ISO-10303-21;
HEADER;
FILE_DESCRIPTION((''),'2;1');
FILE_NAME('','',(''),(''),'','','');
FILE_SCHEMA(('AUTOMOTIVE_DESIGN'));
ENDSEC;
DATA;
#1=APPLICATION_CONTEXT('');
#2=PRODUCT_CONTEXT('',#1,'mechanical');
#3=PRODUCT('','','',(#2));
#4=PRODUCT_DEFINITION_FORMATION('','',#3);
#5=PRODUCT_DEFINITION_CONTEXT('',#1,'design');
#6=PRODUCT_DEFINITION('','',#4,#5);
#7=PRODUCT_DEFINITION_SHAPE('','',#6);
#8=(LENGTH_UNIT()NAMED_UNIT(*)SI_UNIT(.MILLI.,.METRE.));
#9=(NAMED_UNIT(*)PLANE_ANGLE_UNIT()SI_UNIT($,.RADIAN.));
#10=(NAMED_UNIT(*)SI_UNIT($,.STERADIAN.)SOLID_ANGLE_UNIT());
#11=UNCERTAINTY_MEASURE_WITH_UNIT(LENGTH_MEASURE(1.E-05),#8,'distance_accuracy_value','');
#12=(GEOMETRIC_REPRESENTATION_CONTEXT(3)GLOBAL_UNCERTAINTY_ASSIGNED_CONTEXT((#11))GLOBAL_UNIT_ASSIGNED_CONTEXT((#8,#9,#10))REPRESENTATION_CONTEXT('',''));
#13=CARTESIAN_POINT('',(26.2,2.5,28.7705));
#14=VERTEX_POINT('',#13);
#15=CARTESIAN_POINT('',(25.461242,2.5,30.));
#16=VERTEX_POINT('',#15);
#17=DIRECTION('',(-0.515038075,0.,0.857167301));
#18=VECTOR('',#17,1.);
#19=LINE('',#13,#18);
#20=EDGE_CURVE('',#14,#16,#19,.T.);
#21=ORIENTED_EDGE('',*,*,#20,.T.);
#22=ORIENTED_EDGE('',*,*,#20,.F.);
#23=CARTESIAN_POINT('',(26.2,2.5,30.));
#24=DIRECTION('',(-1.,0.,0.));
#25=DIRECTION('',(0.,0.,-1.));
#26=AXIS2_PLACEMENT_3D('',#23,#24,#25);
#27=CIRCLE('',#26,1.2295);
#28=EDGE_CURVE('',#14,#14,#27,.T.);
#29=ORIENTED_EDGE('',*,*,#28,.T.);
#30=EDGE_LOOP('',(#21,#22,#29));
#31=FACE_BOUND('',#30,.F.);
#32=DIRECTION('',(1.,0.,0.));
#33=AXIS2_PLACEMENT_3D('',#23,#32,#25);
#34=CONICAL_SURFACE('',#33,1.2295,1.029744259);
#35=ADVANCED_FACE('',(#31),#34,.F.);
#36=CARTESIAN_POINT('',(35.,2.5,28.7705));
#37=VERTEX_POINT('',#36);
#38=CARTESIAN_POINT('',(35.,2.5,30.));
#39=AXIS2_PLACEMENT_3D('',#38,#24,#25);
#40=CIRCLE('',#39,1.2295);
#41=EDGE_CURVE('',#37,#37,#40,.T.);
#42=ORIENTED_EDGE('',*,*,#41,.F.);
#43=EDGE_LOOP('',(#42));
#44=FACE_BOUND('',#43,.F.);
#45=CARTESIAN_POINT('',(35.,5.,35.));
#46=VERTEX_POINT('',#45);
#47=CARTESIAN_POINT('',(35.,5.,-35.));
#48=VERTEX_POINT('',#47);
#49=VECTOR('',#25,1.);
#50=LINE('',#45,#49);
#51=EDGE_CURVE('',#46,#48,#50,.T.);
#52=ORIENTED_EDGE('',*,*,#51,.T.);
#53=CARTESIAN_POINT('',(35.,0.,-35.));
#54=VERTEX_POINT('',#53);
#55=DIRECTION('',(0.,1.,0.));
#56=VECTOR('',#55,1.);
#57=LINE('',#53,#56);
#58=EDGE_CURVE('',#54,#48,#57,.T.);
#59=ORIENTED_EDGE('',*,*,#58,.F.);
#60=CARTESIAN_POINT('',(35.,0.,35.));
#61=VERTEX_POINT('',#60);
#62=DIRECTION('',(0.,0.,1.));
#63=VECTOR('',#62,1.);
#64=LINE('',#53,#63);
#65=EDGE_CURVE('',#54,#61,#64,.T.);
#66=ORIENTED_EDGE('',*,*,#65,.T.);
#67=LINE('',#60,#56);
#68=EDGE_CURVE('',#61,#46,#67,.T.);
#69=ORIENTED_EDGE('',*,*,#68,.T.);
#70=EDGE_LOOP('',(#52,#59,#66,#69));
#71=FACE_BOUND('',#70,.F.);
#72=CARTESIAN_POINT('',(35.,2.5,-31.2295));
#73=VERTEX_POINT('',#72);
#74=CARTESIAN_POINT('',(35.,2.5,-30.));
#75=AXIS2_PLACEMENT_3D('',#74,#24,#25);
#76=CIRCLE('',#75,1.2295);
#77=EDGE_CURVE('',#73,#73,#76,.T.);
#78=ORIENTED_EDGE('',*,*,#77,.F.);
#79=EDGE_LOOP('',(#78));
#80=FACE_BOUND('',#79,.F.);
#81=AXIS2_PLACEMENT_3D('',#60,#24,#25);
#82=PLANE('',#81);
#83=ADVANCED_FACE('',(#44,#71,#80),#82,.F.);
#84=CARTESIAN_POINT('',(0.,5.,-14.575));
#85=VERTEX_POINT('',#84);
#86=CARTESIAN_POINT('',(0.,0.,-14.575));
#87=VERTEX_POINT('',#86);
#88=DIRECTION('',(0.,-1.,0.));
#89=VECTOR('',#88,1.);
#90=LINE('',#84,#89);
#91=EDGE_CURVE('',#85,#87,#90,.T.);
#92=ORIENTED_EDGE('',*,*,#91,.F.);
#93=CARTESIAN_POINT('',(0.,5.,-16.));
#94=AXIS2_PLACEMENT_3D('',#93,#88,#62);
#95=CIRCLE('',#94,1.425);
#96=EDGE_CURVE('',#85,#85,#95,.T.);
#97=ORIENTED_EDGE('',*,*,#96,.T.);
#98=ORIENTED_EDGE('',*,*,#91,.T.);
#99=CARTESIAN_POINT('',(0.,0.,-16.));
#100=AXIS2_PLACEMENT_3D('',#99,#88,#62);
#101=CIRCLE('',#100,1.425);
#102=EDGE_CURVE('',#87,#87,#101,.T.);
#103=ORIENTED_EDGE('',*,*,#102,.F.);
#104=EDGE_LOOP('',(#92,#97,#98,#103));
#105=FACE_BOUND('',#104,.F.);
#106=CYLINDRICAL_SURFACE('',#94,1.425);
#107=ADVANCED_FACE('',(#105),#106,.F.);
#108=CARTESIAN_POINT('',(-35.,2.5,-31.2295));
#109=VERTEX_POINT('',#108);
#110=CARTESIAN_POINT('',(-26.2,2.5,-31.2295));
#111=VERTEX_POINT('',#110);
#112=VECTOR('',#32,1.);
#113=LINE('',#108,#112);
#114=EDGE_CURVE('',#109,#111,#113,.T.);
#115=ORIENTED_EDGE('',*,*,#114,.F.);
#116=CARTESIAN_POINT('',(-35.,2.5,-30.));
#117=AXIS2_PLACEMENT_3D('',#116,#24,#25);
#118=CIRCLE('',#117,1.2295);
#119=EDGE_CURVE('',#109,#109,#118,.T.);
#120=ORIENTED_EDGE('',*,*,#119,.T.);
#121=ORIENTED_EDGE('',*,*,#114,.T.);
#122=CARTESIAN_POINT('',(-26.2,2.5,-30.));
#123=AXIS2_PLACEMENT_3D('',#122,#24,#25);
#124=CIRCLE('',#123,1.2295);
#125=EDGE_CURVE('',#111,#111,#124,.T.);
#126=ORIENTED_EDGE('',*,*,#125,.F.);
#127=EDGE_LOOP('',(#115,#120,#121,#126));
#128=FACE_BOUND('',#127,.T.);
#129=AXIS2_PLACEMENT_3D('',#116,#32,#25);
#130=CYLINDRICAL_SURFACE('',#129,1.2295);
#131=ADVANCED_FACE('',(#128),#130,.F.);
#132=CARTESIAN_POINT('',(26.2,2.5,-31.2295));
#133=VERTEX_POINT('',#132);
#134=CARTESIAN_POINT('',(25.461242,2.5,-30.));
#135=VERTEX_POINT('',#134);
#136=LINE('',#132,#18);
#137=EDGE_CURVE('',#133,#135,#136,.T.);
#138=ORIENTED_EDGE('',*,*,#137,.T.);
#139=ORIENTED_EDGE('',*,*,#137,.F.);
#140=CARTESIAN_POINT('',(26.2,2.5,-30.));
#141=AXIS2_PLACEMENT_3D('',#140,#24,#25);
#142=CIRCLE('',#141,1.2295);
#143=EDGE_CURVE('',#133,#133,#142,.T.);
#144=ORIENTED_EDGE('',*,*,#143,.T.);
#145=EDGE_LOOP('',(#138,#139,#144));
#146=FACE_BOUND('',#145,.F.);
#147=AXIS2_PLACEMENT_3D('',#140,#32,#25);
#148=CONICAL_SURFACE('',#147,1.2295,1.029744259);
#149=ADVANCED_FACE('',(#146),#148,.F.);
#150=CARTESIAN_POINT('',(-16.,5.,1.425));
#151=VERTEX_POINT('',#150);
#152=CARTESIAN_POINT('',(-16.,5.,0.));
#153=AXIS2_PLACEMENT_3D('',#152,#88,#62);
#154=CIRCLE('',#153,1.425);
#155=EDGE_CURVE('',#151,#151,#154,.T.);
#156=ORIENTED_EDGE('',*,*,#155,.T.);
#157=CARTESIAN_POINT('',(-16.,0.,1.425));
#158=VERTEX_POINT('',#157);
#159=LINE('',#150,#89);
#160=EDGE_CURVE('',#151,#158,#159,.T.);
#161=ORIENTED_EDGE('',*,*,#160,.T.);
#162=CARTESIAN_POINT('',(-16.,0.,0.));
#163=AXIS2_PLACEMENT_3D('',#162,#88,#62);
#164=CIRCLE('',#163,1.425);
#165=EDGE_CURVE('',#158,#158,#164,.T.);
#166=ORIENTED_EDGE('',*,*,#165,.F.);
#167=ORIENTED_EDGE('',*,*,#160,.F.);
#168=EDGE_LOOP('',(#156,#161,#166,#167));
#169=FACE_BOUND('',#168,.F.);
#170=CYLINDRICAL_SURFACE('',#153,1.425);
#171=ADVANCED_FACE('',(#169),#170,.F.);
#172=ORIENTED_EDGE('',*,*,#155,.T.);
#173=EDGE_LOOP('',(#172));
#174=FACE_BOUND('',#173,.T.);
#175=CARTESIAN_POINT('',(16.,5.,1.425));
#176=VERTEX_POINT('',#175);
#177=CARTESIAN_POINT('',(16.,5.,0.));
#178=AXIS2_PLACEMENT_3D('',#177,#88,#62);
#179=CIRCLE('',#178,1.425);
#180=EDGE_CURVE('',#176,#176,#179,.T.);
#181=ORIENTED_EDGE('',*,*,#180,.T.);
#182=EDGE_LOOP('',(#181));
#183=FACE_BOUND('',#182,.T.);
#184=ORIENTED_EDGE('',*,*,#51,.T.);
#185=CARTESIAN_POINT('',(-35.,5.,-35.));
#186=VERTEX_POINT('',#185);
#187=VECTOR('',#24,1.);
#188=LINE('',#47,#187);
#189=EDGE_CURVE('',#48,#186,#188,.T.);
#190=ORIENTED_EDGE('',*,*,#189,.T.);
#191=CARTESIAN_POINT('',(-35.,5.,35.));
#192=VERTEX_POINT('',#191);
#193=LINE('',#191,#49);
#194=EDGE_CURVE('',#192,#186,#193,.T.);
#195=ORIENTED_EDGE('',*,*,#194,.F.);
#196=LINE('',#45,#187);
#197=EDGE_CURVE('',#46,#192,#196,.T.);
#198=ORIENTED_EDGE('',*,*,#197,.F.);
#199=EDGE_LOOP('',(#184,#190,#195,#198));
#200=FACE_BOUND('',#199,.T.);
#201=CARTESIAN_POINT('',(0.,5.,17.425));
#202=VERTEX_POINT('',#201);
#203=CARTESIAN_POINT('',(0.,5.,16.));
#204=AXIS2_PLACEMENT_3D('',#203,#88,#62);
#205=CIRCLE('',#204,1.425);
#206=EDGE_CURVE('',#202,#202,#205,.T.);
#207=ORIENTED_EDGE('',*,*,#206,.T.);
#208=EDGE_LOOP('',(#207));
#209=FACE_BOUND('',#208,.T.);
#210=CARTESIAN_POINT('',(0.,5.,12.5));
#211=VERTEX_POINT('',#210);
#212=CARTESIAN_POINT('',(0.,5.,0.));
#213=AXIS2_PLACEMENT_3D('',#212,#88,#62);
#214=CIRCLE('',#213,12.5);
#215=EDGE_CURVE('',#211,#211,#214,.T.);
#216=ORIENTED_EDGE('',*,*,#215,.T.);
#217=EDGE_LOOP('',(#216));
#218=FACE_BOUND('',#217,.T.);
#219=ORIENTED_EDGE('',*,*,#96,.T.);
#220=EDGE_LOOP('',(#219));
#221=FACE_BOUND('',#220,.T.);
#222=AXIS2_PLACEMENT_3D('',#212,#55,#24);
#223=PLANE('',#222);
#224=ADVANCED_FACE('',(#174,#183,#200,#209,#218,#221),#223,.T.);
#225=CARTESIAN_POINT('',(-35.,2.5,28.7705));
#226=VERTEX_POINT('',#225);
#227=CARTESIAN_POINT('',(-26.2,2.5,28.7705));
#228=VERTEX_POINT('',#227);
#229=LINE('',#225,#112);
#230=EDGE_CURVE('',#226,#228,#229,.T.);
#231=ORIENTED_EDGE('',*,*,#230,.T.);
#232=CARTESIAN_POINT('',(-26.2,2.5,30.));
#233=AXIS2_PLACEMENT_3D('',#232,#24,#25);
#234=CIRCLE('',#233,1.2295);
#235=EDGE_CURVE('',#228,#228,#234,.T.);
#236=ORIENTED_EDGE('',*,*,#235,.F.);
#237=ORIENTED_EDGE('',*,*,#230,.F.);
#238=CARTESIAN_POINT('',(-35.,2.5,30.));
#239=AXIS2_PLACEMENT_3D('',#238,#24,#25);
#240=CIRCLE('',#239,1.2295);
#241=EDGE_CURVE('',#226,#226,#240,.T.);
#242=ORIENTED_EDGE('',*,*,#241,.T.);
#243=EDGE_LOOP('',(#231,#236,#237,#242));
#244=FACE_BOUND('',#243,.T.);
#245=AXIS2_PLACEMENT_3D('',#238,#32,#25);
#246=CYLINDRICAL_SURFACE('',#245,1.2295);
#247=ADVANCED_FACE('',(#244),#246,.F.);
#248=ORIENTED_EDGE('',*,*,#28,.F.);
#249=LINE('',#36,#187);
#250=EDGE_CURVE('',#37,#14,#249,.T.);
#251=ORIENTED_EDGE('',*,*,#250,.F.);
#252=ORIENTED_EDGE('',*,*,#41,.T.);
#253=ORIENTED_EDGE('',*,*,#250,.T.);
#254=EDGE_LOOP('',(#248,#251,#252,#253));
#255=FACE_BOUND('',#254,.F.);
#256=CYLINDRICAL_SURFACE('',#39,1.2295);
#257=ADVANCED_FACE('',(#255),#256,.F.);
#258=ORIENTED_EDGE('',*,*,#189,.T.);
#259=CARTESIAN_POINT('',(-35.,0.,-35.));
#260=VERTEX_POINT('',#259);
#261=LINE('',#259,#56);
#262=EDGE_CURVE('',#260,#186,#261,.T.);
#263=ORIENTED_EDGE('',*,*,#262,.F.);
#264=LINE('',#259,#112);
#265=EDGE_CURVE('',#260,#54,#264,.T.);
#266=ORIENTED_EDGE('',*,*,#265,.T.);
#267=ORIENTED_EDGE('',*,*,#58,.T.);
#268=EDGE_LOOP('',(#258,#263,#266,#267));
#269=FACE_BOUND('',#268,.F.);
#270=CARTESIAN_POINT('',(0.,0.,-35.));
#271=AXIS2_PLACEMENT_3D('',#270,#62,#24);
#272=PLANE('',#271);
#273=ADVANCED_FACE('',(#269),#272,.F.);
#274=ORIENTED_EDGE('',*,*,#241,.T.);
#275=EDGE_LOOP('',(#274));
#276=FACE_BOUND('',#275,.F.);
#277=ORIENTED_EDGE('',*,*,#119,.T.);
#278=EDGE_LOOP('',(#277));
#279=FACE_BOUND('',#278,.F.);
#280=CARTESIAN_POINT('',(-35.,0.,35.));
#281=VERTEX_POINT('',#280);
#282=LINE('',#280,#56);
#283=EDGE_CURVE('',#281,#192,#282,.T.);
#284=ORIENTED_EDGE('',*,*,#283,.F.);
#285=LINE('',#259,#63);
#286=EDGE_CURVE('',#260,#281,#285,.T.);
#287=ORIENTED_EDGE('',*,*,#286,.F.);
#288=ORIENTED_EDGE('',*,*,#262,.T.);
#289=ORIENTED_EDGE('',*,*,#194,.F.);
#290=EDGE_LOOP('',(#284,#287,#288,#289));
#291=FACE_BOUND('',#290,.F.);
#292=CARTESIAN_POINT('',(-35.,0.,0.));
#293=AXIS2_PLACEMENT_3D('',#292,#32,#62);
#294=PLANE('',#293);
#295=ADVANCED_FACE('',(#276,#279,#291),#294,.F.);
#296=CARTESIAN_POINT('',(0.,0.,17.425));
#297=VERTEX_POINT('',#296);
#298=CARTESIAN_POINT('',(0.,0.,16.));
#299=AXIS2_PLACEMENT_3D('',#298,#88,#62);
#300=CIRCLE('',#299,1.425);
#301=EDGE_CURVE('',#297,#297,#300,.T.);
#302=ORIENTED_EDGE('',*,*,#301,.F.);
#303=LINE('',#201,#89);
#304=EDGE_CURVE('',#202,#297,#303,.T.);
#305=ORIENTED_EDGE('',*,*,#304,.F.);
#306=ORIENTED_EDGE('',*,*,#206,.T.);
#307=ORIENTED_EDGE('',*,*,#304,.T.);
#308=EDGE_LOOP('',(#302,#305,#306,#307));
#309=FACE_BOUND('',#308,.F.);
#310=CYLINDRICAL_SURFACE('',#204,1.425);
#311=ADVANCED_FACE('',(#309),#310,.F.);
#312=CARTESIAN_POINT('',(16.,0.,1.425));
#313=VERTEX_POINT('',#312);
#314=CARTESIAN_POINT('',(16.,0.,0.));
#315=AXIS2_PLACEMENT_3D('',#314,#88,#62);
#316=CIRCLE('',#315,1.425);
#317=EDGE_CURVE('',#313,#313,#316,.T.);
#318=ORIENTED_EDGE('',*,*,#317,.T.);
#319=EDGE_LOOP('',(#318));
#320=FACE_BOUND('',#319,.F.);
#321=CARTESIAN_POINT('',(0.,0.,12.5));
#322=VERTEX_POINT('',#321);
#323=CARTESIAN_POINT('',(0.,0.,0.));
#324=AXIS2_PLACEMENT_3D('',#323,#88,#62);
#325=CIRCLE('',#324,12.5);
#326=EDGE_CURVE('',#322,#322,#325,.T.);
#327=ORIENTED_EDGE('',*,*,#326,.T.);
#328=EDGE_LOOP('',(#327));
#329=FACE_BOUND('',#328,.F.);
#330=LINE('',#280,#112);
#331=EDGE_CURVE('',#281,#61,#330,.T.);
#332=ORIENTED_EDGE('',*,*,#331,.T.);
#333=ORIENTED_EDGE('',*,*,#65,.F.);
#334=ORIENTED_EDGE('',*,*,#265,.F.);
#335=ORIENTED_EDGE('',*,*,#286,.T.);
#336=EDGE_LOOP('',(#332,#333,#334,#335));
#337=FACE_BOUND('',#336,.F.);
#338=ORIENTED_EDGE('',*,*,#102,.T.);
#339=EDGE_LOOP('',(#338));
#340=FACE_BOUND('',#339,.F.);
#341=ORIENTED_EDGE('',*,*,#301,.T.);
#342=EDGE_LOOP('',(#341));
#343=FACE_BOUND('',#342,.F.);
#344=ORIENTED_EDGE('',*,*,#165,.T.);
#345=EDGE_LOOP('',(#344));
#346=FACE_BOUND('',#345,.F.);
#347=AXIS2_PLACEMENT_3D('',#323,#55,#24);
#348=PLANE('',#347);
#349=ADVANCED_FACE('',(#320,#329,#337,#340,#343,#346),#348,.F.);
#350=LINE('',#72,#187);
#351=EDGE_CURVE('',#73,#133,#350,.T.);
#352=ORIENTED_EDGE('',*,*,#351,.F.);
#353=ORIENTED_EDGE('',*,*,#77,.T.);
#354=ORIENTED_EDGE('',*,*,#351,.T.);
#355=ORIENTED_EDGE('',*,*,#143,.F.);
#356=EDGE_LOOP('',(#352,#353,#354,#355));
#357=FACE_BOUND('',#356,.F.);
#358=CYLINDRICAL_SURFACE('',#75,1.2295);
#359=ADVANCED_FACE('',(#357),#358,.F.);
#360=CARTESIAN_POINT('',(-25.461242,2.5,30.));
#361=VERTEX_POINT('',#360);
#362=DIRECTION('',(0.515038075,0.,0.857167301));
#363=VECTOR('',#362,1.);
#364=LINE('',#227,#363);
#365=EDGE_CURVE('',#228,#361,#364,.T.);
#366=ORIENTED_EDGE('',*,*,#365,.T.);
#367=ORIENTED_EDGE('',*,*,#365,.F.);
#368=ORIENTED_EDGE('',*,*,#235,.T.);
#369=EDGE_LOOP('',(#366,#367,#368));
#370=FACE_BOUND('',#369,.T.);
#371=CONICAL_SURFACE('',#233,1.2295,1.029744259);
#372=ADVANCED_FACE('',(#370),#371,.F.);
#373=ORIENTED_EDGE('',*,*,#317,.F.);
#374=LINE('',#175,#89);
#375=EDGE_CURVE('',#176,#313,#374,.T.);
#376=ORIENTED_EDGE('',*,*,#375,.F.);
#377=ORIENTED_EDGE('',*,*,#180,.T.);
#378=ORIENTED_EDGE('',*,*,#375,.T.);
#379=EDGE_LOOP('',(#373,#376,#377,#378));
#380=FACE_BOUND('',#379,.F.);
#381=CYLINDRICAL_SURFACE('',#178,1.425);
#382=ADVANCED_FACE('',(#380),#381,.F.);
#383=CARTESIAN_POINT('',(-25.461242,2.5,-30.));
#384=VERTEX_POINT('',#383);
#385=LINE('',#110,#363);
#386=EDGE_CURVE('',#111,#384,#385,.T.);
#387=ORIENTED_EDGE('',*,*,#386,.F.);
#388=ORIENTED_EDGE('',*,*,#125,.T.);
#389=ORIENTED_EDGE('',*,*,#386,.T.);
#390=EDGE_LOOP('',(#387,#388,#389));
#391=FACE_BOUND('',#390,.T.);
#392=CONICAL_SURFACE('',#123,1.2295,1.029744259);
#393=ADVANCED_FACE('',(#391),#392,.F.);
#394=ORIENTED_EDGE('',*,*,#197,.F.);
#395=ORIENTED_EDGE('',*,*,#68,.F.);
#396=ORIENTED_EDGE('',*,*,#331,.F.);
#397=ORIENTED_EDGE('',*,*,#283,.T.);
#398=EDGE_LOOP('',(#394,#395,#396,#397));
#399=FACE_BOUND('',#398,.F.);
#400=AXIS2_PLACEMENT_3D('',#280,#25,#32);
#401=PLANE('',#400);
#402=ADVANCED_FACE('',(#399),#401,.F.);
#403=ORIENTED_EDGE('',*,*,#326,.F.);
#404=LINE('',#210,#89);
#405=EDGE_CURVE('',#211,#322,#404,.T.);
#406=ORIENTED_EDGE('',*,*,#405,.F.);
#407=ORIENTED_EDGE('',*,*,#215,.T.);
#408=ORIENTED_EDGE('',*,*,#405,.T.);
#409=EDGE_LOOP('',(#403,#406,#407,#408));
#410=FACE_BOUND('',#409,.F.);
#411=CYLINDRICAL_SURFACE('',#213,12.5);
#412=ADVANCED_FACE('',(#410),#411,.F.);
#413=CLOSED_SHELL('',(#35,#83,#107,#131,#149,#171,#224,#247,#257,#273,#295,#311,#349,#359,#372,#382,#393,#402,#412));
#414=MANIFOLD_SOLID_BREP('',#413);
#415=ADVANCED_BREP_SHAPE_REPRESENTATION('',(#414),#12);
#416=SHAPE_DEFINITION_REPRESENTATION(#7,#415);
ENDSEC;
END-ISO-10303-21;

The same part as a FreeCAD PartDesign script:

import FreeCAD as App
import Part
import Sketcher

V = App.Vector


def add_polygon(sketch, points):
    """Adds a closed chain of lines whose ends are joined by coincident constraints."""
    first, n = sketch.GeometryCount, len(points)
    for a, b in zip(points, points[1:] + points[:1]):
        sketch.addGeometry(Part.LineSegment(App.Vector(*a, 0), App.Vector(*b, 0)), False)
    for i in range(n):
        sketch.addConstraint(Sketcher.Constraint("Coincident", first + i, 2, first + (i + 1) % n, 1))

doc = App.newDocument("Part")
body = doc.addObject("PartDesign::Body", "Body")

sketch1 = body.newObject("Sketcher::SketchObject", "Sketch")
sketch1.AttachmentSupport = (doc.getObject("XZ_Plane"), [""])
sketch1.MapMode = "FlatFace"
add_polygon(sketch1, [(-35, 35), (35, 35), (35, -35), (-35, -35)])
sketch1.addConstraint([
    Sketcher.Constraint("Horizontal", 0),
    Sketcher.Constraint("Vertical", 1),
    Sketcher.Constraint("Horizontal", 2),
    Sketcher.Constraint("Vertical", 3),
    Sketcher.Constraint("Symmetric", 0, 2, 2, 2, -1, 1),
    Sketcher.Constraint("Equal", 2, 1),
    Sketcher.Constraint("DistanceX", 0, 1, 0, 2, 70.0),
])
pad1 = body.newObject("PartDesign::Pad", "Pad")
pad1.Profile = sketch1
pad1.Length = 5
pad1.Reversed = True

sketch2 = body.newObject("Sketcher::SketchObject", "Sketch001")
sketch2.AttachmentSupport = (doc.getObject("YZ_Plane"), [""])
sketch2.MapMode = "FlatFace"
sketch2.AttachmentOffset = App.Placement(V(0, 0, 35), App.Rotation())
sketch2.addGeometry([
    Part.Circle(V(2.5, -30, 0), V(0, 0, 1), 1.2295),
    Part.Circle(V(2.5, 30, 0), V(0, 0, 1), 1.2295),
], False)
sketch2.addConstraint([
    Sketcher.Constraint("Equal", 0, 1),
    Sketcher.Constraint("Symmetric", 0, 3, 1, 3, -1),
    Sketcher.Constraint("Diameter", 0, 2.459),
    Sketcher.Constraint("DistanceY", 0, 3, -1, 1, 30.0),
    Sketcher.Constraint("DistanceX", -1, 1, 0, 3, 2.5),
])
doc.recompute()
hole = body.newObject("PartDesign::Hole", "Hole")
hole.Profile = sketch2
hole.ThreadType = "None"
hole.Diameter = 2.459
hole.DepthType = "Dimension"
hole.Depth = 8.8
hole.DrillPoint = "Angled"
hole.DrillPointAngle = 118

sketch3 = body.newObject("Sketcher::SketchObject", "Sketch002")
sketch3.AttachmentSupport = (doc.getObject("XZ_Plane"), [""])
sketch3.MapMode = "FlatFace"
sketch3.AttachmentOffset = App.Placement(V(0, 0, -5), App.Rotation())
sketch3.addGeometry(Part.Circle(V(0, 0, 0), V(0, 0, 1), 12.5), False)
sketch3.addConstraint([
    Sketcher.Constraint("Coincident", 0, 3, -1, 1),
    Sketcher.Constraint("Diameter", 0, 25.0),
])
doc.recompute()
hole2 = body.newObject("PartDesign::Hole", "Hole001")
hole2.Profile = sketch3
hole2.ThreadType = "None"
hole2.Diameter = 25
hole2.DepthType = "Dimension"
hole2.Depth = 10
hole2.DrillPoint = "Angled"
hole2.DrillPointAngle = 118
hole2.Reversed = True

sketch4 = body.newObject("Sketcher::SketchObject", "Sketch003")
sketch4.AttachmentSupport = (doc.getObject("XZ_Plane"), [""])
sketch4.MapMode = "FlatFace"
sketch4.AttachmentOffset = App.Placement(V(0, 0, -5), App.Rotation())
sketch4.addGeometry([
    Part.Circle(V(-16, 0, 0), V(0, 0, 1), 1.425),
    Part.Circle(V(0, -16, 0), V(0, 0, 1), 1.425),
    Part.Circle(V(0, 16, 0), V(0, 0, 1), 1.425),
    Part.Circle(V(16, 0, 0), V(0, 0, 1), 1.425),
], False)
sketch4.addConstraint([
    Sketcher.Constraint("Equal", 0, 1),
    Sketcher.Constraint("Equal", 1, 2),
    Sketcher.Constraint("Equal", 2, 3),
    Sketcher.Constraint("Symmetric", 1, 3, 2, 3, -1, 1),
    Sketcher.Constraint("Symmetric", 0, 3, 3, 3, -1, 1),
    Sketcher.Constraint("PointOnObject", 0, 3, -1),
    Sketcher.Constraint("PointOnObject", 1, 3, -2),
    Sketcher.Constraint("Diameter", 0, 2.85),
    Sketcher.Constraint("DistanceX", 0, 3, -1, 1, 16.0),
    Sketcher.Constraint("DistanceY", 1, 3, -1, 1, 16.0),
])
doc.recompute()
hole3 = body.newObject("PartDesign::Hole", "Hole002")
hole3.Profile = sketch4
hole3.ThreadType = "None"
hole3.Diameter = 2.85
hole3.DepthType = "Dimension"
hole3.Depth = 10.4
hole3.DrillPoint = "Angled"
hole3.DrillPointAngle = 118
hole3.Reversed = True
doc.recompute()

mirrored = body.newObject("PartDesign::Mirrored", "Mirrored")
mirrored.Originals = [hole]
mirrored.MirrorPlane = (doc.getObject("YZ_Plane"), [""])
body.Tip = mirrored

doc.recompute()
